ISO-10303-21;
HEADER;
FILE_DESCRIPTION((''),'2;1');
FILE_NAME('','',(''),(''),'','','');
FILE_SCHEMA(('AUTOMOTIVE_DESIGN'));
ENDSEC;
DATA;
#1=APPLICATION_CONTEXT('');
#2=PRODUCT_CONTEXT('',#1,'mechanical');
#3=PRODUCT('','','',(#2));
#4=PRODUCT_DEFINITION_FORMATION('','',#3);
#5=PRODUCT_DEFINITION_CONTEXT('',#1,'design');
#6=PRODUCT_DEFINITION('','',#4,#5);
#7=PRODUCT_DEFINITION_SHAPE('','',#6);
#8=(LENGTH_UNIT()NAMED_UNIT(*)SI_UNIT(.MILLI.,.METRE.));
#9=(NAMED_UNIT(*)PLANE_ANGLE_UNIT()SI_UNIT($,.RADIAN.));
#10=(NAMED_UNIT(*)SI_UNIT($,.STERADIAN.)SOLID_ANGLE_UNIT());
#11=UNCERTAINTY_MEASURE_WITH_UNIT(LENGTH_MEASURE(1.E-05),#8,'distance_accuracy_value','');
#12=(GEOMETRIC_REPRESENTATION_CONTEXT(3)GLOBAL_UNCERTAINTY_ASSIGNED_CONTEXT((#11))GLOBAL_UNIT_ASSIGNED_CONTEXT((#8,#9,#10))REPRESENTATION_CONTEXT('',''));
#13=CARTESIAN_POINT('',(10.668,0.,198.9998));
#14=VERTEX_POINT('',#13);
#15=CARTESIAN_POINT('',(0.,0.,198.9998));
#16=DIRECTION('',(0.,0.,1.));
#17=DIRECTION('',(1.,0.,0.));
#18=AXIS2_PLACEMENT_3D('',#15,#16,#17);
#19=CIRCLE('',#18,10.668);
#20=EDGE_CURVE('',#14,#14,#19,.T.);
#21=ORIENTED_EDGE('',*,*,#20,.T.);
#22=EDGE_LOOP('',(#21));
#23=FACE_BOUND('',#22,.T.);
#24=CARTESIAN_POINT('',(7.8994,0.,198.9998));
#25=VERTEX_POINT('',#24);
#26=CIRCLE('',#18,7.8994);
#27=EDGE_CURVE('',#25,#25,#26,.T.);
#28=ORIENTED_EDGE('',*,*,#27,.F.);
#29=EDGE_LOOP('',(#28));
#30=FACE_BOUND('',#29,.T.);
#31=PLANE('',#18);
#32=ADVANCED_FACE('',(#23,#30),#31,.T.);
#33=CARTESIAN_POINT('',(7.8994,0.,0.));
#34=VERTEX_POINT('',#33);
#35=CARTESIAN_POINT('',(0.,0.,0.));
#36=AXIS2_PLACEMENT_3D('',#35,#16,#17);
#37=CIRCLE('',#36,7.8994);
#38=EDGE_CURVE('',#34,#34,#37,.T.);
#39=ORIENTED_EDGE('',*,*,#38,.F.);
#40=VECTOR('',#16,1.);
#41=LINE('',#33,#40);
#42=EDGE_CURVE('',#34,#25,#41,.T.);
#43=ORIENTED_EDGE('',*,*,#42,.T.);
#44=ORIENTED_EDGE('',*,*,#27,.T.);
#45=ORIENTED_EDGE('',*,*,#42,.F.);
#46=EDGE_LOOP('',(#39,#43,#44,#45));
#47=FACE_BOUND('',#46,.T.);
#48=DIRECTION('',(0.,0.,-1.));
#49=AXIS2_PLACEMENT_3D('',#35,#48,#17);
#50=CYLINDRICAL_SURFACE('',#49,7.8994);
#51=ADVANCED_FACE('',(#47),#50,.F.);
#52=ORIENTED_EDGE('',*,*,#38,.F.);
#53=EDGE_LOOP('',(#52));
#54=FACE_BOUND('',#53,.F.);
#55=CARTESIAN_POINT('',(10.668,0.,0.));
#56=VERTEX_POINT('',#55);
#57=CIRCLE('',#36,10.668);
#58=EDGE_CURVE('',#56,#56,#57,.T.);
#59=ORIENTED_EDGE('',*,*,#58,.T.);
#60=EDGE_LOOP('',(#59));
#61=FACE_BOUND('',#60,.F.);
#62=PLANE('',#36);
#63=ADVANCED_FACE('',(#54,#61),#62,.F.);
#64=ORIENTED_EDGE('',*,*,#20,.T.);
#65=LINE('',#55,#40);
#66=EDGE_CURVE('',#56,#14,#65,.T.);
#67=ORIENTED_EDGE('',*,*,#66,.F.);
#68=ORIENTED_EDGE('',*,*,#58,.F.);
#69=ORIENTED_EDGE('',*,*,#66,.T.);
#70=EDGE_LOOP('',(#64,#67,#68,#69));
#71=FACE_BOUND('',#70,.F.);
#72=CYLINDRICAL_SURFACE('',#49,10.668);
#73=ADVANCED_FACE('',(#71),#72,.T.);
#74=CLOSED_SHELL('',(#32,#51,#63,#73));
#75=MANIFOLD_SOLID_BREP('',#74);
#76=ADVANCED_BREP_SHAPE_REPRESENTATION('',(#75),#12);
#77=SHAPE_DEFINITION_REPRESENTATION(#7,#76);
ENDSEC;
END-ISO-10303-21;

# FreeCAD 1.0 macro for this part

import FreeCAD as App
import Part
import Sketcher

V = App.Vector
Q = App.Units.Quantity

doc = App.newDocument("Part")
params = doc.addObject("Spreadsheet::Sheet", "Params")
for row, (alias, value) in enumerate([
    ("sketch1_diameter", "0.84 in"),
    ("sketch1_diameter2", "0.622 in"),
    ("pad1_length", "198.9998 mm"),
], start=1):
    params.set(f"A{row}", alias)
    params.set(f"B{row}", "=" + value)
    params.setAlias(f"B{row}", alias)

body = doc.addObject("PartDesign::Body", "Body")

sketch1 = body.newObject("Sketcher::SketchObject", "Sketch")
sketch1.AttachmentSupport = (doc.getObject("XY_Plane"), [""])
sketch1.MapMode = "FlatFace"
sketch1.addGeometry([
    Part.Circle(V(0, 0, 0), V(0, 0, 1), 11),
    Part.Circle(V(0, 0, 0), V(0, 0, 1), 8),
], False)
sketch1.addConstraint([
    Sketcher.Constraint("Coincident", 0, 3, -1, 1),
    Sketcher.Constraint("Coincident", 1, 3, -1, 1),
    Sketcher.Constraint("Diameter", 0, Q("0.84 in")),
    Sketcher.Constraint("Diameter", 1, Q("0.622 in")),
])
sketch1.setExpression("Constraints[2]", "Params.sketch1_diameter")
sketch1.setExpression("Constraints[3]", "Params.sketch1_diameter2")
pad1 = body.newObject("PartDesign::Pad", "Pad")
pad1.Profile = sketch1
pad1.setExpression("Length", "Params.pad1_length")

doc.recompute()
